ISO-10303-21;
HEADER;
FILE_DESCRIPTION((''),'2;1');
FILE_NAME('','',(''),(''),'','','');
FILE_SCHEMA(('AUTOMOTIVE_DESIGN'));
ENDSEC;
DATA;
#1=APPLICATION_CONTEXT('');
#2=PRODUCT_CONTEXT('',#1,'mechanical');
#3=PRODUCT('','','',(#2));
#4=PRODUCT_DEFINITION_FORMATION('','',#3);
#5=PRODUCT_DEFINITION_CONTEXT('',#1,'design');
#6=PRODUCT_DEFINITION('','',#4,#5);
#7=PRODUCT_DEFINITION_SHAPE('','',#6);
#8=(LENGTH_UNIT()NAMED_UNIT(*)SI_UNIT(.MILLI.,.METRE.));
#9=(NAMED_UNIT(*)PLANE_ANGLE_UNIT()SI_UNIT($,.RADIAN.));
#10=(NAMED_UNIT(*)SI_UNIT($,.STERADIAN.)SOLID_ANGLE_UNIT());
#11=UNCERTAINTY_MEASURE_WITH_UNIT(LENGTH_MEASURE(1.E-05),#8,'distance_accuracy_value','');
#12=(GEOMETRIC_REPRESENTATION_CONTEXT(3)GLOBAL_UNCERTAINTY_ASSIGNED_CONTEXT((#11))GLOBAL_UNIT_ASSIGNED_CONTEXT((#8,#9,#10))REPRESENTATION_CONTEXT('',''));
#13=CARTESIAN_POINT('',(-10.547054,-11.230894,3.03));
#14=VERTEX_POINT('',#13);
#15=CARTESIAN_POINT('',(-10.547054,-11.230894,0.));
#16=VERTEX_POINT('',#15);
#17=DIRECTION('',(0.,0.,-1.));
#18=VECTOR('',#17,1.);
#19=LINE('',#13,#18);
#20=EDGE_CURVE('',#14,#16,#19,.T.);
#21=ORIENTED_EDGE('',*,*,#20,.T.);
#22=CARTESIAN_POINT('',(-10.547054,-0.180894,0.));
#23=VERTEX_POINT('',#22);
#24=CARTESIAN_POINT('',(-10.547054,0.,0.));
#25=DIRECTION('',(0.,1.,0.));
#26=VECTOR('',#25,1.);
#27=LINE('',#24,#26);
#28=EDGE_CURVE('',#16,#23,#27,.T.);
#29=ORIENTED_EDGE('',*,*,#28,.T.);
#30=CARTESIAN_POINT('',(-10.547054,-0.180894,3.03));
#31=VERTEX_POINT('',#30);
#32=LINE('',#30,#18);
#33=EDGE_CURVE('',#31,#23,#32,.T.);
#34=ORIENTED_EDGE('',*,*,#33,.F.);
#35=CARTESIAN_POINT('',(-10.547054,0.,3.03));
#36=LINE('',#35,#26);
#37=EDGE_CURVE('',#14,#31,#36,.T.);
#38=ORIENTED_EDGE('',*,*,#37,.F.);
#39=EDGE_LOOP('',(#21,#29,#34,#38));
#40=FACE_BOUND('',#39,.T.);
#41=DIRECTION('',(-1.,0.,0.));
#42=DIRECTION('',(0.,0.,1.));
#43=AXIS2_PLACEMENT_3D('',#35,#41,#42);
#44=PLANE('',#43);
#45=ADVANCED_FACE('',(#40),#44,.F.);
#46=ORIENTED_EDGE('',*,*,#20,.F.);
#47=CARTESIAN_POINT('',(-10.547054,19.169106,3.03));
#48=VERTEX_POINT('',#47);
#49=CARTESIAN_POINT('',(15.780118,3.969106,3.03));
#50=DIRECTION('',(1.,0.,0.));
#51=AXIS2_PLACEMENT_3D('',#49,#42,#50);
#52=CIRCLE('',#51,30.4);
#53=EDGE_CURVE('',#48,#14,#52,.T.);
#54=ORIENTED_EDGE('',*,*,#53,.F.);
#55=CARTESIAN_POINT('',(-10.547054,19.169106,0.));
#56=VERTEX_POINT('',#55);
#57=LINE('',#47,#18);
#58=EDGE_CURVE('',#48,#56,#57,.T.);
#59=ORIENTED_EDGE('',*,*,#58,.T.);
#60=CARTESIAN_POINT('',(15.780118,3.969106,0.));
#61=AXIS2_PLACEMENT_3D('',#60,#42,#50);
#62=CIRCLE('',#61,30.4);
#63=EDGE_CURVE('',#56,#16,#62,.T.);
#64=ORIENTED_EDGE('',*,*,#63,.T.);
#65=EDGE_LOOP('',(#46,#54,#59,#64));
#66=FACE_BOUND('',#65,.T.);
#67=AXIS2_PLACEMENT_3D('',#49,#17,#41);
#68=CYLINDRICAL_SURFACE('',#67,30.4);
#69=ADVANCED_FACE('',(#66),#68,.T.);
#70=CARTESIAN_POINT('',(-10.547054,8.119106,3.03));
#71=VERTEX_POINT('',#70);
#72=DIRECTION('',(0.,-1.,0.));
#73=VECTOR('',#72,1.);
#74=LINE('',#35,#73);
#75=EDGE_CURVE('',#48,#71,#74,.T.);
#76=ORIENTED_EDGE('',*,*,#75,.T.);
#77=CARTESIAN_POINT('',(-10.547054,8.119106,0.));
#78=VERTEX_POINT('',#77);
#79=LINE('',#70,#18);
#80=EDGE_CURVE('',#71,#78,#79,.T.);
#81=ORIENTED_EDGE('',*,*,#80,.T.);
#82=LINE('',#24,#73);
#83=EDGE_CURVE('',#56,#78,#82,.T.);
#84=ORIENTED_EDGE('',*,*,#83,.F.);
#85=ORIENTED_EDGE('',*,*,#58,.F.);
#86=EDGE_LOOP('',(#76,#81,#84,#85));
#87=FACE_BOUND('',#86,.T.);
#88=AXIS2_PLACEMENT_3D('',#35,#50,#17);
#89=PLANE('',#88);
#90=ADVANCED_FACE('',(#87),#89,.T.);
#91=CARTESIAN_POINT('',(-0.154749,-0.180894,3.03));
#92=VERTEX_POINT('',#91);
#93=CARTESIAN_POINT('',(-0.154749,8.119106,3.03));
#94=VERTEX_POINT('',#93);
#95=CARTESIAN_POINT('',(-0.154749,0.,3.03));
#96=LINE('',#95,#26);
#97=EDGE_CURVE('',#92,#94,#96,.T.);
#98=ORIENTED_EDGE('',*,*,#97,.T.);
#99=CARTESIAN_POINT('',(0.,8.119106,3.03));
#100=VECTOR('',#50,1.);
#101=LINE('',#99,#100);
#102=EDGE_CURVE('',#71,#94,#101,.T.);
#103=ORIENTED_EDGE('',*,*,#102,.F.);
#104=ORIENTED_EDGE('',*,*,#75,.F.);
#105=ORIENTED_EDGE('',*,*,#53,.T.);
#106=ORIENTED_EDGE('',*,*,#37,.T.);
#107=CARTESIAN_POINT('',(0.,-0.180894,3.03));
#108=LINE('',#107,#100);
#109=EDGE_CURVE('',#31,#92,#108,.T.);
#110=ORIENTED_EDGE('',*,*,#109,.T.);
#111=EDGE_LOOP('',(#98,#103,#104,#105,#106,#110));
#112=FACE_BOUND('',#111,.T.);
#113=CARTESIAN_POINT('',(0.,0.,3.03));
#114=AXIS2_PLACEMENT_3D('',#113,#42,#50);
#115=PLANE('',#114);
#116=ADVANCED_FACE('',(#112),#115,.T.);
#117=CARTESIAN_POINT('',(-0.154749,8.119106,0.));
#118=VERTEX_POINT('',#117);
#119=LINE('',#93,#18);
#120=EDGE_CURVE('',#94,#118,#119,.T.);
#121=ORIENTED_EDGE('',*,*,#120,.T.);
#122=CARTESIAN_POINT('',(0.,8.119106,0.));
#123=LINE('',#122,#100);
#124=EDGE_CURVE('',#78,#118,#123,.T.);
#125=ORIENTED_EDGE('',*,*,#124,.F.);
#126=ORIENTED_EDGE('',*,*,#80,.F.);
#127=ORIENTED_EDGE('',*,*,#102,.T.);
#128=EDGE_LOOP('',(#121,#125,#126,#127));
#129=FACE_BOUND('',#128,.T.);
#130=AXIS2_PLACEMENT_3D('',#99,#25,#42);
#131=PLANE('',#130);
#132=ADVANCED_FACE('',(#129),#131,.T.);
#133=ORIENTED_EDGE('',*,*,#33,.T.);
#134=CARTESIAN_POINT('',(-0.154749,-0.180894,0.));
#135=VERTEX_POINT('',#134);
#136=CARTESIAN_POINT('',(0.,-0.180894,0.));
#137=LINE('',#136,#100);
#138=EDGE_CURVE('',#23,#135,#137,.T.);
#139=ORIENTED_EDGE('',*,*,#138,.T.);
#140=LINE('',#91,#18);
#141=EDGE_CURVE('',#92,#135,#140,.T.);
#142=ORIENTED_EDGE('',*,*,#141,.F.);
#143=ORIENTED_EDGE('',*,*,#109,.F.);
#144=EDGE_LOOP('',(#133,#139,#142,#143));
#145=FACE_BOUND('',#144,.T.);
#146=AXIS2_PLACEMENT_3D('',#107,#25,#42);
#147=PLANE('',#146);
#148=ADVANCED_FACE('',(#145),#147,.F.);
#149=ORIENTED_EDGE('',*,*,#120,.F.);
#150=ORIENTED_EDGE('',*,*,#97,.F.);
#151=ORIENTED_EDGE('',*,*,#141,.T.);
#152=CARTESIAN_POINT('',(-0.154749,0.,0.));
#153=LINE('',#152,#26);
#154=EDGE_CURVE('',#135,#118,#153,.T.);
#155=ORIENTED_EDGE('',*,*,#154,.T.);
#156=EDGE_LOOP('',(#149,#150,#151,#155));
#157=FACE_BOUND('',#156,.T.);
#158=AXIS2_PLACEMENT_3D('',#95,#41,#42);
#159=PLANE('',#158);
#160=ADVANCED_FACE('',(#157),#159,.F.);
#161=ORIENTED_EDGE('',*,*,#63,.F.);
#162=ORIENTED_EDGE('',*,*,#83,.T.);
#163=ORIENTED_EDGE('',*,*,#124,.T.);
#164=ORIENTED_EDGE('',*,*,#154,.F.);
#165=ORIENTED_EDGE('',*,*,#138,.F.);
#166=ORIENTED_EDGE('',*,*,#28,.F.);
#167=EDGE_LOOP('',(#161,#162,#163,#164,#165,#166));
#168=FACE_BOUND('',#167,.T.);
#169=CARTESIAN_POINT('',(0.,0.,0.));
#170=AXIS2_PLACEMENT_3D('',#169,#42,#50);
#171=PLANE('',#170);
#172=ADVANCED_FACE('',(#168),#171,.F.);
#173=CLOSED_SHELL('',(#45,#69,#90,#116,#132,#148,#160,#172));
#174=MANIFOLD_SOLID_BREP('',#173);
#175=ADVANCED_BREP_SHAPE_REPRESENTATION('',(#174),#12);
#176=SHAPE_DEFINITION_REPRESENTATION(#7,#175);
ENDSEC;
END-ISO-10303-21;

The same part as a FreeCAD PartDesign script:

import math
import FreeCAD as App
import Part
import Sketcher
Q = App.Units.Quantity

doc = App.newDocument("Part")
body = doc.addObject("PartDesign::Body", "Body")

sketch1 = doc.addObject("Sketcher::SketchObject", "Sketch")
body.addObject(sketch1)
sketch1.AttachmentSupport = (doc.XY_Plane, [""])
sketch1.MapMode = "FlatFace"
sketch1.addGeometry([
    Part.LineSegment(App.Vector(-10.547054, 8.119106, 0), App.Vector(-10.547054, 19.169106, 0)),
    Part.ArcOfCircle(Part.Circle(App.Vector(15.780118, 3.969106, 0), App.Vector(0, 0, 1), 30.4), math.radians(150), math.radians(210)),
    Part.LineSegment(App.Vector(-10.547054, -11.230894, 0), App.Vector(-10.547054, -0.180894, 0)),
    Part.LineSegment(App.Vector(-10.547054, -0.180894, 0), App.Vector(-0.154749, -0.180894, 0)),
    Part.LineSegment(App.Vector(-0.154749, -0.180894, 0), App.Vector(-0.154749, 8.119106, 0)),
    Part.LineSegment(App.Vector(-0.154749, 8.119106, 0), App.Vector(-10.547054, 8.119106, 0)),
], False)
sketch1.addConstraint([
    Sketcher.Constraint("Coincident", 0, 2, 1, 1),
    Sketcher.Constraint("Coincident", 1, 2, 2, 1),
    Sketcher.Constraint("Coincident", 2, 2, 3, 1),
    Sketcher.Constraint("Coincident", 3, 2, 4, 1),
    Sketcher.Constraint("Coincident", 4, 2, 5, 1),
    Sketcher.Constraint("Coincident", 5, 2, 0, 1),
    Sketcher.Constraint("Vertical", 0),
    Sketcher.Constraint("Vertical", 2),
    Sketcher.Constraint("Horizontal", 3),
    Sketcher.Constraint("Vertical", 4),
    Sketcher.Constraint("Horizontal", 5),
    Sketcher.Constraint("Vertical", 0, 2, 1, 2),
    Sketcher.Constraint("Equal", 0, 2),
    Sketcher.Constraint("Radius", 1, Q("30.4 mm")),
    Sketcher.Constraint("DistanceY", 4, 1, 4, 2, Q("8.3 mm")),
    Sketcher.Constraint("DistanceY", 0, 1, 0, 2, Q("11.05 mm")),
    Sketcher.Constraint("DistanceX", 3, 1, 3, 2, Q("10.392305 mm")),
    Sketcher.Constraint("DistanceX", -1, 1, 1, 3, Q("15.780118 mm")),
    Sketcher.Constraint("DistanceY", -1, 1, 1, 3, Q("3.969106 mm")),
])
pad1 = doc.addObject("PartDesign::Pad", "Pad")
body.addObject(pad1)
pad1.Profile = sketch1
pad1.Length = 3.03

doc.recompute()
